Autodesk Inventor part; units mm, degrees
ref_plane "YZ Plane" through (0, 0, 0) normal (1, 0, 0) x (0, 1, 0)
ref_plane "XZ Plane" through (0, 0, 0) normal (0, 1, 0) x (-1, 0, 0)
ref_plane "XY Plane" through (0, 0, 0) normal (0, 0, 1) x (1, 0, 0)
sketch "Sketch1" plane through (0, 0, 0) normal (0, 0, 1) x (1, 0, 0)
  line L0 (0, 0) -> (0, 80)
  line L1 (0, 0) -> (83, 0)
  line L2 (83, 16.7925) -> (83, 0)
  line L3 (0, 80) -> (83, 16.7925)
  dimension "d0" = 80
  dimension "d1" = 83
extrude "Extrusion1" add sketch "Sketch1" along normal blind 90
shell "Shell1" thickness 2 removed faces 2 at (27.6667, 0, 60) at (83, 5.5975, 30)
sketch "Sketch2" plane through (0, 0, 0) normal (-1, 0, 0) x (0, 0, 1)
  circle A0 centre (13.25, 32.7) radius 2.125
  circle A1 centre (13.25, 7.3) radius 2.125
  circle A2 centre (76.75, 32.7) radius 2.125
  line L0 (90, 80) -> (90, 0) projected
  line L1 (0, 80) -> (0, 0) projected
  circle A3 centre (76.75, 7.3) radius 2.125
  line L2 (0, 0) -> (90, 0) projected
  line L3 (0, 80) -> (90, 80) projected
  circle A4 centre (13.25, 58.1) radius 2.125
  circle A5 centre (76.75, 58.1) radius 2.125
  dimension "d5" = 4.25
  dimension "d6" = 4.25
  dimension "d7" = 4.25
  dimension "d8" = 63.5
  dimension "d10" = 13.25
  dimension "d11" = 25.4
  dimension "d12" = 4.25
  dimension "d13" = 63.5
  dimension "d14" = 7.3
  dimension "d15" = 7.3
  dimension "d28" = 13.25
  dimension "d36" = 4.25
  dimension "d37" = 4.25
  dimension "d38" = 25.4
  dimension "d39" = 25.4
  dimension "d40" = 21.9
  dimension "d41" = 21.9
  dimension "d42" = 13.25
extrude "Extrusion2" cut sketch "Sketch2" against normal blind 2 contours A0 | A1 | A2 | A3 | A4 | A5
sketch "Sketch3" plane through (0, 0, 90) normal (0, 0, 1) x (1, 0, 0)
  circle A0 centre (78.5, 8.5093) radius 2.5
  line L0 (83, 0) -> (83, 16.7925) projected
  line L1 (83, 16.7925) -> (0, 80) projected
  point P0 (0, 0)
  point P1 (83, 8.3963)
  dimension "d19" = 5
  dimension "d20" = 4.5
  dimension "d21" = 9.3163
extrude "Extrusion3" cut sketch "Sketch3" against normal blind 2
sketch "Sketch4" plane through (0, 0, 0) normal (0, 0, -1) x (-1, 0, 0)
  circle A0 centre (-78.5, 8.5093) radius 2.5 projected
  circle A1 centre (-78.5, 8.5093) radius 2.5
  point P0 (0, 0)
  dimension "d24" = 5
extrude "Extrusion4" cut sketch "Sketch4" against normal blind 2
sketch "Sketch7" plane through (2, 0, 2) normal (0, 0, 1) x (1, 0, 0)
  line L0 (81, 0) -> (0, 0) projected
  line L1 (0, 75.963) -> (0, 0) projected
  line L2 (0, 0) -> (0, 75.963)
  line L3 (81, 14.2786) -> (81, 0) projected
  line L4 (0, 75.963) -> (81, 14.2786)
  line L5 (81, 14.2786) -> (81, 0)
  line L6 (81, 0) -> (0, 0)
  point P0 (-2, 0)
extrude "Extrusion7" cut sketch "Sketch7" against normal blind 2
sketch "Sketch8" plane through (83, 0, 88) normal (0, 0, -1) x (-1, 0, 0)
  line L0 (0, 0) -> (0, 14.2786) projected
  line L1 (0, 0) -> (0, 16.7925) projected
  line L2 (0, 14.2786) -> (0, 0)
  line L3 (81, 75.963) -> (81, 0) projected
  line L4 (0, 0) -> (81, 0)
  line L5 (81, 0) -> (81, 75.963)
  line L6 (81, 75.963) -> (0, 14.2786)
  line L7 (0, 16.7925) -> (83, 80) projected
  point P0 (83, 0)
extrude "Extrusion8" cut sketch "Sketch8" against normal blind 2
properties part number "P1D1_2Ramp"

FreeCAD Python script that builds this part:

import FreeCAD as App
import Part
import Sketcher
Q = App.Units.Quantity


def faces_at(feature, points):
    """Names of the faces that lie closest to the given points."""
    faces = feature.Shape.Faces
    near = lambda p: min(range(len(faces)), key=lambda i: faces[i].distToShape(Part.Vertex(*p))[0])
    return sorted({f"Face{near(p) + 1}" for p in points})


def add_polygon(sketch, points):
    """Adds a closed chain of lines whose ends are joined by coincident constraints."""
    first, n = sketch.GeometryCount, len(points)
    for a, b in zip(points, points[1:] + points[:1]):
        sketch.addGeometry(Part.LineSegment(App.Vector(*a, 0), App.Vector(*b, 0)), False)
    for i in range(n):
        sketch.addConstraint(Sketcher.Constraint("Coincident", first + i, 2, first + (i + 1) % n, 1))

doc = App.newDocument("Part")
body = doc.addObject("PartDesign::Body", "Body")

sketch1 = body.newObject("Sketcher::SketchObject", "Sketch")
sketch1.AttachmentSupport = (doc.getObject("XY_Plane"), [""])
sketch1.MapMode = "FlatFace"
add_polygon(sketch1, [(0, 80), (0, 0), (83, 0), (83, 17)])
sketch1.addConstraint(Sketcher.Constraint("Vertical", 0))
sketch1.addConstraint(Sketcher.Constraint("Horizontal", 1))
sketch1.addConstraint(Sketcher.Constraint("Vertical", 2))
sketch1.addConstraint(Sketcher.Constraint("Coincident", 0, 2, -1, 1))
sketch1.addConstraint(Sketcher.Constraint("DistanceX", 1, 1, 1, 2, Q("83 mm")))
sketch1.addConstraint(Sketcher.Constraint("DistanceY", 0, 2, 0, 1, Q("80 mm")))
sketch1.addConstraint(Sketcher.Constraint("Angle", 3, Q("142.7094 deg")))
pad1 = body.newObject("PartDesign::Pad", "Pad")
pad1.Profile = sketch1
pad1.Length = 90
doc.recompute()

thickness = body.newObject("PartDesign::Thickness", "Thickness")
thickness.Base = (pad1, faces_at(pad1, [(27.667, 0, 60), (83, 5.598, 30)]))
thickness.Value = 2
thickness.Reversed = True
thickness.Join = "Intersection"

sketch2 = body.newObject("Sketcher::SketchObject", "Sketch001")
sketch2.AttachmentSupport = (doc.getObject("YZ_Plane"), [""])
sketch2.MapMode = "FlatFace"
sketch2.addGeometry(Part.Circle(App.Vector(32.7, 13.2, 0), App.Vector(0, 0, 1), 2.1), False)
sketch2.addGeometry(Part.Circle(App.Vector(7.3, 13.2, 0), App.Vector(0, 0, 1), 2.1), False)
sketch2.addGeometry(Part.Circle(App.Vector(32.7, 76.8, 0), App.Vector(0, 0, 1), 2.1), False)
sketch2.addGeometry(Part.Circle(App.Vector(7.3, 76.8, 0), App.Vector(0, 0, 1), 2.1), False)
sketch2.addGeometry(Part.Circle(App.Vector(58.1, 13.2, 0), App.Vector(0, 0, 1), 2.1), False)
sketch2.addGeometry(Part.Circle(App.Vector(58.1, 76.8, 0), App.Vector(0, 0, 1), 2.1), False)
sketch2.addConstraint(Sketcher.Constraint("Equal", 0, 1))
sketch2.addConstraint(Sketcher.Constraint("Equal", 1, 2))
sketch2.addConstraint(Sketcher.Constraint("Equal", 2, 3))
sketch2.addConstraint(Sketcher.Constraint("Equal", 3, 4))
sketch2.addConstraint(Sketcher.Constraint("Equal", 4, 5))
sketch2.addConstraint(Sketcher.Constraint("Horizontal", 0, 3, 1, 3))
sketch2.addConstraint(Sketcher.Constraint("Horizontal", 2, 3, 3, 3))
sketch2.addConstraint(Sketcher.Constraint("Horizontal", 1, 3, 4, 3))
sketch2.addConstraint(Sketcher.Constraint("Horizontal", 3, 3, 5, 3))
sketch2.addConstraint(Sketcher.Constraint("Vertical", 0, 3, 2, 3))
sketch2.addConstraint(Sketcher.Constraint("Vertical", 1, 3, 3, 3))
sketch2.addConstraint(Sketcher.Constraint("Vertical", 4, 3, 5, 3))
sketch2.addConstraint(Sketcher.Constraint("Diameter", 0, Q("4.25 mm")))
sketch2.addConstraint(Sketcher.Constraint("DistanceX", -1, 1, 1, 3, Q("7.3 mm")))
sketch2.addConstraint(Sketcher.Constraint("DistanceX", 1, 3, 0, 3, Q("25.4 mm")))
sketch2.addConstraint(Sketcher.Constraint("DistanceY", 0, 3, 2, 3, Q("63.5 mm")))
sketch2.addConstraint(Sketcher.Constraint("DistanceX", 0, 3, 4, 3, Q("25.4 mm")))
sketch2.addConstraint(Sketcher.Constraint("DistanceY", -1, 1, 0, 3, Q("13.25 mm")))
pocket1 = body.newObject("PartDesign::Pocket", "Pocket")
pocket1.Profile = sketch2
pocket1.Length = 2
pocket1.Reversed = True

sketch3 = body.newObject("Sketcher::SketchObject", "Sketch002")
sketch3.AttachmentSupport = (doc.getObject("XY_Plane"), [""])
sketch3.MapMode = "FlatFace"
sketch3.AttachmentOffset = App.Placement(App.Vector(0, 0, 90), App.Rotation())
sketch3.addGeometry(Part.Circle(App.Vector(78.5, 8.5, 0), App.Vector(0, 0, 1), 2.5), False)
sketch3.addConstraint(Sketcher.Constraint("Diameter", 0, Q("5 mm")))
sketch3.addConstraint(Sketcher.Constraint("DistanceX", -1, 1, 0, 3, Q("78.5 mm")))
sketch3.addConstraint(Sketcher.Constraint("DistanceY", -1, 1, 0, 3, Q("8.5093 mm")))
pocket2 = body.newObject("PartDesign::Pocket", "Pocket001")
pocket2.Profile = sketch3
pocket2.Length = 2

sketch4 = body.newObject("Sketcher::SketchObject", "Sketch003")
sketch4.AttachmentSupport = (doc.getObject("XY_Plane"), [""])
sketch4.MapMode = "FlatFace"
sketch4.addGeometry(Part.Circle(App.Vector(78.5, 8.5, 0), App.Vector(0, 0, 1), 2.5), False)
sketch4.addConstraint(Sketcher.Constraint("Diameter", 0, Q("5 mm")))
sketch4.addConstraint(Sketcher.Constraint("DistanceX", -1, 1, 0, 3, Q("78.5 mm")))
sketch4.addConstraint(Sketcher.Constraint("DistanceY", -1, 1, 0, 3, Q("8.5093 mm")))
pocket3 = body.newObject("PartDesign::Pocket", "Pocket002")
pocket3.Profile = sketch4
pocket3.Length = 2
pocket3.Reversed = True

sketch5 = body.newObject("Sketcher::SketchObject", "Sketch004")
sketch5.AttachmentSupport = (doc.getObject("XY_Plane"), [""])
sketch5.MapMode = "FlatFace"
sketch5.AttachmentOffset = App.Placement(App.Vector(0, 0, 2), App.Rotation())
add_polygon(sketch5, [(2, 0), (83, 0), (83, 14), (2, 76)])
sketch5.addConstraint(Sketcher.Constraint("Horizontal", 0))
sketch5.addConstraint(Sketcher.Constraint("Vertical", 1))
sketch5.addConstraint(Sketcher.Constraint("Vertical", 3))
sketch5.addConstraint(Sketcher.Constraint("PointOnObject", 0, 2, -1))
sketch5.addConstraint(Sketcher.Constraint("DistanceX", 0, 1, 0, 2, Q("81 mm")))
sketch5.addConstraint(Sketcher.Constraint("DistanceX", -1, 1, 0, 2, Q("83 mm")))
sketch5.addConstraint(Sketcher.Constraint("Angle", 2, Q("142.7094 deg")))
sketch5.addConstraint(Sketcher.Constraint("DistanceY", 3, 2, 3, 1, Q("75.963 mm")))
pocket4 = body.newObject("PartDesign::Pocket", "Pocket003")
pocket4.Profile = sketch5
pocket4.Length = 2

sketch6 = body.newObject("Sketcher::SketchObject", "Sketch005")
sketch6.AttachmentSupport = (doc.getObject("XY_Plane"), [""])
sketch6.MapMode = "FlatFace"
sketch6.AttachmentOffset = App.Placement(App.Vector(0, 0, 88), App.Rotation())
add_polygon(sketch6, [(83, 14), (83, 0), (2, 0), (2, 76)])
sketch6.addConstraint(Sketcher.Constraint("Vertical", 0))
sketch6.addConstraint(Sketcher.Constraint("Horizontal", 1))
sketch6.addConstraint(Sketcher.Constraint("Vertical", 2))
sketch6.addConstraint(Sketcher.Constraint("PointOnObject", 0, 2, -1))
sketch6.addConstraint(Sketcher.Constraint("DistanceX", 1, 2, 1, 1, Q("81 mm")))
sketch6.addConstraint(Sketcher.Constraint("DistanceX", -1, 1, 0, 2, Q("83 mm")))
sketch6.addConstraint(Sketcher.Constraint("Angle", 3, Q("-37.2906 deg")))
sketch6.addConstraint(Sketcher.Constraint("DistanceY", 2, 1, 2, 2, Q("75.963 mm")))
pocket5 = body.newObject("PartDesign::Pocket", "Pocket004")
pocket5.Profile = sketch6
pocket5.Length = 2
pocket5.Reversed = True

doc.recompute()
